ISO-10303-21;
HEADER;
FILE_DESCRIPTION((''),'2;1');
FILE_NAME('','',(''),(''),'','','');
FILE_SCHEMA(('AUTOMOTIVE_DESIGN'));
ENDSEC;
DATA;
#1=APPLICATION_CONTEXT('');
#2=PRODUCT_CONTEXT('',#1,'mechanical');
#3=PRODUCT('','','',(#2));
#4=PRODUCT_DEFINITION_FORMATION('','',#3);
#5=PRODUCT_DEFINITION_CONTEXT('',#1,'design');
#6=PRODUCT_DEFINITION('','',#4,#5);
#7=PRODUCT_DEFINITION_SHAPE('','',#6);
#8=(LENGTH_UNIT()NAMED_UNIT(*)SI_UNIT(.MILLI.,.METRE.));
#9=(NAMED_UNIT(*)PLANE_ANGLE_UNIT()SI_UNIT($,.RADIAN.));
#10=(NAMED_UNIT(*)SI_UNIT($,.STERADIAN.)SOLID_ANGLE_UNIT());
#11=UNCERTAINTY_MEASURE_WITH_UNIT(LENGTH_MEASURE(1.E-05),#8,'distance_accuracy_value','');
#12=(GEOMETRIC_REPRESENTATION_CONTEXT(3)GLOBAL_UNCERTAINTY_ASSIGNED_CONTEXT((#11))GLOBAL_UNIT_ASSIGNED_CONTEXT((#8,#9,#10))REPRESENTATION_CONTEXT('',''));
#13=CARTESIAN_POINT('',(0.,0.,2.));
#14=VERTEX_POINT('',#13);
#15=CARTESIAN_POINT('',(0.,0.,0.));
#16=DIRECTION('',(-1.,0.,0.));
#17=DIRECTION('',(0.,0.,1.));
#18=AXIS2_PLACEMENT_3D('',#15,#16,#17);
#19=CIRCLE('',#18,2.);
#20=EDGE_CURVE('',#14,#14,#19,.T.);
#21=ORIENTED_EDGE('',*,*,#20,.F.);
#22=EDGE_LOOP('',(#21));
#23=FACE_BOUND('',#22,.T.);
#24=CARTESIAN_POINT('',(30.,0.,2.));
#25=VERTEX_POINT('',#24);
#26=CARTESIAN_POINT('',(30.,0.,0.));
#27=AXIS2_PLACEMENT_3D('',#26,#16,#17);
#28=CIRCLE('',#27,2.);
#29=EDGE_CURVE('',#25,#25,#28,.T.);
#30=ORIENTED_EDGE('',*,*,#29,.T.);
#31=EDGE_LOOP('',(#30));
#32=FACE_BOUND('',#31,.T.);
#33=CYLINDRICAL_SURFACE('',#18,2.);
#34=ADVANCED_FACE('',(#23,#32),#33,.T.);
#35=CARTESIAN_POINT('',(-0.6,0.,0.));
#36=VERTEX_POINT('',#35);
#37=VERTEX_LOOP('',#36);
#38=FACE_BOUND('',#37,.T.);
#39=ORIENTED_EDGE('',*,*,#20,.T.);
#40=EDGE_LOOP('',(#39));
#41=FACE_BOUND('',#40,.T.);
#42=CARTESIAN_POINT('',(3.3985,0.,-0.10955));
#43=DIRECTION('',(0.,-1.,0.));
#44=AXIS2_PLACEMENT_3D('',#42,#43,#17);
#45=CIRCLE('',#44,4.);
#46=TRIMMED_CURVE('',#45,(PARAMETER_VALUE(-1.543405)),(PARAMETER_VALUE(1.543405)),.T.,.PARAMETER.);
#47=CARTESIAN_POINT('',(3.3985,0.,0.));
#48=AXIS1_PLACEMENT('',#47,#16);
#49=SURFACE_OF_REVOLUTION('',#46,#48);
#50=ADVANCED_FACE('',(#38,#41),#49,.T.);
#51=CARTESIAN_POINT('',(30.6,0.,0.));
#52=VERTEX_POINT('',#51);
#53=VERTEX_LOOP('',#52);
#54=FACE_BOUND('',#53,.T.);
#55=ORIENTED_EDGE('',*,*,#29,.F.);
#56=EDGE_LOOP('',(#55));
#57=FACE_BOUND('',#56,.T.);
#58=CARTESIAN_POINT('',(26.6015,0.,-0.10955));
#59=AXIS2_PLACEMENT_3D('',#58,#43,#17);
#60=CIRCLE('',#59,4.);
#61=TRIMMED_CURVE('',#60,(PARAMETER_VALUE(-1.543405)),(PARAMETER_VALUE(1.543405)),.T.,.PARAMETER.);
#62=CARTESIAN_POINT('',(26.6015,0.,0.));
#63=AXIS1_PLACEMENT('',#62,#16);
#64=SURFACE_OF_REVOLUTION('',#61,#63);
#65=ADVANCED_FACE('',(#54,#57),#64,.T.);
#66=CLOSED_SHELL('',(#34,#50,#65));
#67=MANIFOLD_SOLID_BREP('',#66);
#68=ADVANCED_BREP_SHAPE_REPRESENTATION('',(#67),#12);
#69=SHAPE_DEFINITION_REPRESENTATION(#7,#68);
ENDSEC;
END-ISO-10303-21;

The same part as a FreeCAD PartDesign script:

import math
import FreeCAD as App
import Part
import Sketcher

V = App.Vector
Q = App.Units.Quantity

doc = App.newDocument("Part")
body = doc.addObject("PartDesign::Body", "Body")

sketch1 = body.newObject("Sketcher::SketchObject", "Sketch")
sketch1.AttachmentSupport = (doc.getObject("XY_Plane"), [""])
sketch1.MapMode = "FlatFace"
sketch1.addGeometry(Part.LineSegment(V(30, 2, 0), V(0, 2, 0)), False)
sketch1.addGeometry(Part.ArcOfCircle(Part.Circle(V(3.3985, -0.10955, 0), V(0, 0, 1), 4), math.radians(148.170894), math.radians(178.430617)), False)
sketch1.addGeometry(Part.LineSegment(V(-0.6, 0, 0), V(30.6, 0, 0)), False)
sketch1.addGeometry(Part.ArcOfCircle(Part.Circle(V(26.6015, -0.10955, 0), V(0, 0, 1), 4), math.radians(1.569383), math.radians(31.829106)), False)
sketch1.addConstraint(Sketcher.Constraint("Coincident", 0, 2, 1, 1))
sketch1.addConstraint(Sketcher.Constraint("Coincident", 1, 2, 2, 1))
sketch1.addConstraint(Sketcher.Constraint("Coincident", 2, 2, 3, 1))
sketch1.addConstraint(Sketcher.Constraint("Coincident", 3, 2, 0, 1))
sketch1.addConstraint(Sketcher.Constraint("Horizontal", 0))
sketch1.addConstraint(Sketcher.Constraint("Horizontal", 2))
sketch1.addConstraint(Sketcher.Constraint("Equal", 1, 3))
sketch1.addConstraint(Sketcher.Constraint("PointOnObject", 0, 2, -2))
sketch1.addConstraint(Sketcher.Constraint("PointOnObject", 1, 2, -1))
sketch1.addConstraint(Sketcher.Constraint("Horizontal", 1, 3, 3, 3))
sketch1.addConstraint(Sketcher.Constraint("Radius", 1, Q("4 mm")))
sketch1.addConstraint(Sketcher.Constraint("DistanceX", 0, 2, 0, 1, Q("30 mm")))
sketch1.addConstraint(Sketcher.Constraint("DistanceX", 2, 1, 2, 2, Q("31.2 mm")))
sketch1.addConstraint(Sketcher.Constraint("DistanceY", -1, 1, 0, 2, Q("2 mm")))
revolution = body.newObject("PartDesign::Revolution", "Revolution")
revolution.Profile = sketch1
revolution.ReferenceAxis = (sketch1, ["H_Axis"])
revolution.Angle = 360

doc.recompute()
